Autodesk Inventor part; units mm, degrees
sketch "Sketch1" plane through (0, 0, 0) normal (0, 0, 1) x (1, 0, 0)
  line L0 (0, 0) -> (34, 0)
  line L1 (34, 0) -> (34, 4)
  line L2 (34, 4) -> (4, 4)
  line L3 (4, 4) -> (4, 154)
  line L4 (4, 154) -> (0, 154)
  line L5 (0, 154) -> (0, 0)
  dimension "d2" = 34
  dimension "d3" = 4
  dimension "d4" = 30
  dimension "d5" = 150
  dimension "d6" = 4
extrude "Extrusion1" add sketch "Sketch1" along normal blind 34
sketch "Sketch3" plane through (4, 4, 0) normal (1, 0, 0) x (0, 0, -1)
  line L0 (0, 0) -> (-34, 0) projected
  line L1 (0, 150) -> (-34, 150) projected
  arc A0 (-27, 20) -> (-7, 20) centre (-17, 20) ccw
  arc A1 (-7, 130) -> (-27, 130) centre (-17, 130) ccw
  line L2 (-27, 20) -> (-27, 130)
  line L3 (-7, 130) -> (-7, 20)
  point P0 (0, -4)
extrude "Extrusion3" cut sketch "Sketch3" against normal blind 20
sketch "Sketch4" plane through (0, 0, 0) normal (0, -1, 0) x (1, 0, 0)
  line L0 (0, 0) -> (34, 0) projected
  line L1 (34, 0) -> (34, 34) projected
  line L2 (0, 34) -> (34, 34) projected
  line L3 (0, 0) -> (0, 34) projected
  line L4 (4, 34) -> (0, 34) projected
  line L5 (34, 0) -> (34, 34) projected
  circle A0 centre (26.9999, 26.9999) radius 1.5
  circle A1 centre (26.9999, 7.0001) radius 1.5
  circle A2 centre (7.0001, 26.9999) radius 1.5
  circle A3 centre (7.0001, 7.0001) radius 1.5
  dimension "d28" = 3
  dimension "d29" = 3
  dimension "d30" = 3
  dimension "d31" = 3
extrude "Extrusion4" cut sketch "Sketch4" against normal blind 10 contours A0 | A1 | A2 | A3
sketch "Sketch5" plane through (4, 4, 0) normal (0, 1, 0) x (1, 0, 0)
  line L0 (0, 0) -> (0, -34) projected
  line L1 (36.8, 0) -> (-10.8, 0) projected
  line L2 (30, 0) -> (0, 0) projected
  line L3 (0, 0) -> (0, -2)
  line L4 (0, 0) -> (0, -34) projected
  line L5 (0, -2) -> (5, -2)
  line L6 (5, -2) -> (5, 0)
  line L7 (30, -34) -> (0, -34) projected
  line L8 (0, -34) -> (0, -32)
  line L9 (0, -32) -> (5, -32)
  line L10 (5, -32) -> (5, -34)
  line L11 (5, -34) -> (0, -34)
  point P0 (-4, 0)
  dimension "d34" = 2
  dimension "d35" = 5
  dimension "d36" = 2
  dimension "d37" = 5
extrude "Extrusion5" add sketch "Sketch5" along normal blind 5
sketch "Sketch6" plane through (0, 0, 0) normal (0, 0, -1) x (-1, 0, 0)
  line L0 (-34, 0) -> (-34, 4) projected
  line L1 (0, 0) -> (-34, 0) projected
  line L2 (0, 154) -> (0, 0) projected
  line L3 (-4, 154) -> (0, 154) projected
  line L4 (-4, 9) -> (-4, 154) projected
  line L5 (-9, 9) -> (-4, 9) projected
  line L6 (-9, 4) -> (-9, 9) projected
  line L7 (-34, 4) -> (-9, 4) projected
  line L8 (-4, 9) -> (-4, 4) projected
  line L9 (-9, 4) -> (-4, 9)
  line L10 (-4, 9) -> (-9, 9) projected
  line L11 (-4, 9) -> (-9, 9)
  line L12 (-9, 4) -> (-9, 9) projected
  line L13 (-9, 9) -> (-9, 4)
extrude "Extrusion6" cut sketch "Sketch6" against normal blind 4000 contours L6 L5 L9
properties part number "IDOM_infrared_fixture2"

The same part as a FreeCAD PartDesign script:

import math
import FreeCAD as App
import Part
import Sketcher

V = App.Vector
Q = App.Units.Quantity

doc = App.newDocument("Part")
params = doc.addObject("Spreadsheet::Sheet", "Params")
for row, (alias, value) in enumerate([
    ("sketch1_width", "34 mm"),
    ("sketch1_width2", "30 mm"),
    ("sketch1_height", "150 mm"),
    ("pad1_length", "34 mm"),
    ("sketch2_radius", "10 mm"),
    ("sketch2_width", "110 mm"),
    ("pocket1_length", "20 mm"),
    ("sketch3_diameter", "3 mm"),
    ("pocket2_length", "10 mm"),
    ("sketch4_width", "5 mm"),
    ("sketch4_height", "2 mm"),
    ("pad2_length", "5 mm"),
    ("sketch5_width", "5 mm"),
    ("pocket3_length", "4000 mm"),
], start=1):
    params.set(f"A{row}", alias)
    params.set(f"B{row}", "=" + value)
    params.setAlias(f"B{row}", alias)

body = doc.addObject("PartDesign::Body", "Body")

sketch1 = body.newObject("Sketcher::SketchObject", "Sketch")
sketch1.AttachmentSupport = (doc.getObject("XY_Plane"), [""])
sketch1.MapMode = "FlatFace"
sketch1.addGeometry([
    Part.LineSegment(V(0, 154, 0), V(0, 0, 0)),
    Part.LineSegment(V(0, 0, 0), V(34, 0, 0)),
    Part.LineSegment(V(34, 0, 0), V(34, 4, 0)),
    Part.LineSegment(V(34, 4, 0), V(4, 4, 0)),
    Part.LineSegment(V(4, 4, 0), V(4, 154, 0)),
    Part.LineSegment(V(4, 154, 0), V(0, 154, 0)),
], False)
sketch1.addConstraint([
    Sketcher.Constraint("Coincident", 0, 2, 1, 1),
    Sketcher.Constraint("Coincident", 1, 2, 2, 1),
    Sketcher.Constraint("Coincident", 2, 2, 3, 1),
    Sketcher.Constraint("Coincident", 3, 2, 4, 1),
    Sketcher.Constraint("Coincident", 4, 2, 5, 1),
    Sketcher.Constraint("Coincident", 5, 2, 0, 1),
    Sketcher.Constraint("Vertical", 0),
    Sketcher.Constraint("Horizontal", 1),
    Sketcher.Constraint("Vertical", 2),
    Sketcher.Constraint("Horizontal", 3),
    Sketcher.Constraint("Vertical", 4),
    Sketcher.Constraint("Horizontal", 5),
    Sketcher.Constraint("Coincident", 0, 2, -1, 1),
    Sketcher.Constraint("Equal", 5, 2),
    Sketcher.Constraint("DistanceX", 1, 1, 1, 2, Q("34 mm")),
    Sketcher.Constraint("DistanceX", 3, 2, 3, 1, Q("30 mm")),
    Sketcher.Constraint("DistanceY", 4, 1, 4, 2, Q("150 mm")),
])
sketch1.setExpression("Constraints[14]", "Params.sketch1_width")
sketch1.setExpression("Constraints[15]", "Params.sketch1_width2")
sketch1.setExpression("Constraints[16]", "Params.sketch1_height")
pad1 = body.newObject("PartDesign::Pad", "Pad")
pad1.Profile = sketch1
pad1.setExpression("Length", "Params.pad1_length")

sketch2 = body.newObject("Sketcher::SketchObject", "Sketch001")
sketch2.AttachmentSupport = (doc.getObject("YZ_Plane"), [""])
sketch2.MapMode = "FlatFace"
sketch2.AttachmentOffset = App.Placement(V(0, 0, 4), App.Rotation())
sketch2.addGeometry([
    Part.LineSegment(V(134, 27, 0), V(24, 27, 0)),
    Part.ArcOfCircle(Part.Circle(V(24, 17, 0), V(0, 0, 1), 10), math.radians(90), math.radians(270)),
    Part.LineSegment(V(24, 7, 0), V(134, 7, 0)),
    Part.ArcOfCircle(Part.Circle(V(134, 17, 0), V(0, 0, 1), 10), math.radians(-90), math.radians(90)),
], False)
sketch2.addConstraint([
    Sketcher.Constraint("Tangent", 0, 2, 1, 1),
    Sketcher.Constraint("Tangent", 1, 2, 2, 1),
    Sketcher.Constraint("Tangent", 2, 2, 3, 1),
    Sketcher.Constraint("Tangent", 3, 2, 0, 1),
    Sketcher.Constraint("Horizontal", 0),
    Sketcher.Constraint("Horizontal", 2),
    Sketcher.Constraint("Radius", 1, Q("10 mm")),
    Sketcher.Constraint("DistanceX", 0, 2, 0, 1, Q("110 mm")),
    Sketcher.Constraint("DistanceX", -1, 1, 1, 3, Q("24 mm")),
    Sketcher.Constraint("DistanceY", -1, 1, 1, 3, Q("17 mm")),
])
sketch2.setExpression("Constraints[6]", "Params.sketch2_radius")
sketch2.setExpression("Constraints[7]", "Params.sketch2_width")
pocket1 = body.newObject("PartDesign::Pocket", "Pocket")
pocket1.Profile = sketch2
pocket1.setExpression("Length", "Params.pocket1_length")

sketch3 = body.newObject("Sketcher::SketchObject", "Sketch002")
sketch3.AttachmentSupport = (doc.getObject("XZ_Plane"), [""])
sketch3.MapMode = "FlatFace"
sketch3.addGeometry([
    Part.Circle(V(26.9999, 26.9999, 0), V(0, 0, 1), 1.5),
    Part.Circle(V(26.9999, 7.0001, 0), V(0, 0, 1), 1.5),
    Part.Circle(V(7.0001, 26.9999, 0), V(0, 0, 1), 1.5),
    Part.Circle(V(7.0001, 7.0001, 0), V(0, 0, 1), 1.5),
], False)
sketch3.addConstraint([
    Sketcher.Constraint("Equal", 0, 1),
    Sketcher.Constraint("Equal", 1, 2),
    Sketcher.Constraint("Equal", 2, 3),
    Sketcher.Constraint("Horizontal", 0, 3, 2, 3),
    Sketcher.Constraint("Horizontal", 1, 3, 3, 3),
    Sketcher.Constraint("Vertical", 0, 3, 1, 3),
    Sketcher.Constraint("Vertical", 2, 3, 3, 3),
    Sketcher.Constraint("Diameter", 0, Q("3 mm")),
    Sketcher.Constraint("DistanceX", -1, 1, 0, 3, Q("27 mm")),
    Sketcher.Constraint("DistanceY", -1, 1, 0, 3, Q("27 mm")),
    Sketcher.Constraint("DistanceY", -1, 1, 1, 3, Q("7 mm")),
    Sketcher.Constraint("DistanceX", -1, 1, 2, 3, Q("7 mm")),
])
sketch3.setExpression("Constraints[7]", "Params.sketch3_diameter")
pocket2 = body.newObject("PartDesign::Pocket", "Pocket001")
pocket2.Profile = sketch3
pocket2.setExpression("Length", "Params.pocket2_length")

sketch4 = body.newObject("Sketcher::SketchObject", "Sketch003")
sketch4.AttachmentSupport = (doc.getObject("XZ_Plane"), [""])
sketch4.MapMode = "FlatFace"
sketch4.AttachmentOffset = App.Placement(V(0, 0, -4), App.Rotation())
sketch4.addGeometry([
    Part.LineSegment(V(9, 0, 0), V(4, 0, 0)),
    Part.LineSegment(V(4, 0, 0), V(4, 2, 0)),
    Part.LineSegment(V(4, 2, 0), V(9, 2, 0)),
    Part.LineSegment(V(9, 2, 0), V(9, 0, 0)),
    Part.LineSegment(V(9, 32, 0), V(4, 32, 0)),
    Part.LineSegment(V(4, 32, 0), V(4, 34, 0)),
    Part.LineSegment(V(4, 34, 0), V(9, 34, 0)),
    Part.LineSegment(V(9, 34, 0), V(9, 32, 0)),
], False)
sketch4.addConstraint([
    Sketcher.Constraint("Coincident", 0, 2, 1, 1),
    Sketcher.Constraint("Coincident", 1, 2, 2, 1),
    Sketcher.Constraint("Coincident", 2, 2, 3, 1),
    Sketcher.Constraint("Coincident", 3, 2, 0, 1),
    Sketcher.Constraint("Coincident", 4, 2, 5, 1),
    Sketcher.Constraint("Coincident", 5, 2, 6, 1),
    Sketcher.Constraint("Coincident", 6, 2, 7, 1),
    Sketcher.Constraint("Coincident", 7, 2, 4, 1),
    Sketcher.Constraint("Horizontal", 0),
    Sketcher.Constraint("Vertical", 1),
    Sketcher.Constraint("Horizontal", 2),
    Sketcher.Constraint("Vertical", 3),
    Sketcher.Constraint("Horizontal", 4),
    Sketcher.Constraint("Vertical", 5),
    Sketcher.Constraint("Horizontal", 6),
    Sketcher.Constraint("Vertical", 7),
    Sketcher.Constraint("PointOnObject", 0, 2, -1),
    Sketcher.Constraint("Vertical", 1, 2, 4, 2),
    Sketcher.Constraint("Vertical", 3, 2, 6, 2),
    Sketcher.Constraint("Equal", 3, 5),
    Sketcher.Constraint("DistanceX", 0, 2, 0, 1, Q("5 mm")),
    Sketcher.Constraint("DistanceY", 1, 1, 1, 2, Q("2 mm")),
    Sketcher.Constraint("DistanceX", -1, 1, 0, 2, Q("4 mm")),
    Sketcher.Constraint("DistanceY", -1, 1, 4, 2, Q("32 mm")),
])
sketch4.setExpression("Constraints[20]", "Params.sketch4_width")
sketch4.setExpression("Constraints[21]", "Params.sketch4_height")
pad2 = body.newObject("PartDesign::Pad", "Pad001")
pad2.Profile = sketch4
pad2.setExpression("Length", "Params.pad2_length")
pad2.Reversed = True

sketch5 = body.newObject("Sketcher::SketchObject", "Sketch004")
sketch5.AttachmentSupport = (doc.getObject("XY_Plane"), [""])
sketch5.MapMode = "FlatFace"
sketch5.addGeometry([
    Part.LineSegment(V(9, 9, 0), V(9, 4, 0)),
    Part.LineSegment(V(9, 4, 0), V(4, 9, 0)),
    Part.LineSegment(V(4, 9, 0), V(9, 9, 0)),
], False)
sketch5.addConstraint([
    Sketcher.Constraint("Coincident", 0, 2, 1, 1),
    Sketcher.Constraint("Coincident", 1, 2, 2, 1),
    Sketcher.Constraint("Coincident", 2, 2, 0, 1),
    Sketcher.Constraint("Vertical", 0),
    Sketcher.Constraint("Horizontal", 2),
    Sketcher.Constraint("Equal", 2, 0),
    Sketcher.Constraint("DistanceX", 2, 1, 2, 2, Q("5 mm")),
    Sketcher.Constraint("DistanceX", -1, 1, 0, 2, Q("9 mm")),
    Sketcher.Constraint("DistanceY", -1, 1, 0, 2, Q("4 mm")),
])
sketch5.setExpression("Constraints[6]", "Params.sketch5_width")
pocket3 = body.newObject("PartDesign::Pocket", "Pocket002")
pocket3.Profile = sketch5
pocket3.setExpression("Length", "Params.pocket3_length")
pocket3.Reversed = True

doc.recompute()
